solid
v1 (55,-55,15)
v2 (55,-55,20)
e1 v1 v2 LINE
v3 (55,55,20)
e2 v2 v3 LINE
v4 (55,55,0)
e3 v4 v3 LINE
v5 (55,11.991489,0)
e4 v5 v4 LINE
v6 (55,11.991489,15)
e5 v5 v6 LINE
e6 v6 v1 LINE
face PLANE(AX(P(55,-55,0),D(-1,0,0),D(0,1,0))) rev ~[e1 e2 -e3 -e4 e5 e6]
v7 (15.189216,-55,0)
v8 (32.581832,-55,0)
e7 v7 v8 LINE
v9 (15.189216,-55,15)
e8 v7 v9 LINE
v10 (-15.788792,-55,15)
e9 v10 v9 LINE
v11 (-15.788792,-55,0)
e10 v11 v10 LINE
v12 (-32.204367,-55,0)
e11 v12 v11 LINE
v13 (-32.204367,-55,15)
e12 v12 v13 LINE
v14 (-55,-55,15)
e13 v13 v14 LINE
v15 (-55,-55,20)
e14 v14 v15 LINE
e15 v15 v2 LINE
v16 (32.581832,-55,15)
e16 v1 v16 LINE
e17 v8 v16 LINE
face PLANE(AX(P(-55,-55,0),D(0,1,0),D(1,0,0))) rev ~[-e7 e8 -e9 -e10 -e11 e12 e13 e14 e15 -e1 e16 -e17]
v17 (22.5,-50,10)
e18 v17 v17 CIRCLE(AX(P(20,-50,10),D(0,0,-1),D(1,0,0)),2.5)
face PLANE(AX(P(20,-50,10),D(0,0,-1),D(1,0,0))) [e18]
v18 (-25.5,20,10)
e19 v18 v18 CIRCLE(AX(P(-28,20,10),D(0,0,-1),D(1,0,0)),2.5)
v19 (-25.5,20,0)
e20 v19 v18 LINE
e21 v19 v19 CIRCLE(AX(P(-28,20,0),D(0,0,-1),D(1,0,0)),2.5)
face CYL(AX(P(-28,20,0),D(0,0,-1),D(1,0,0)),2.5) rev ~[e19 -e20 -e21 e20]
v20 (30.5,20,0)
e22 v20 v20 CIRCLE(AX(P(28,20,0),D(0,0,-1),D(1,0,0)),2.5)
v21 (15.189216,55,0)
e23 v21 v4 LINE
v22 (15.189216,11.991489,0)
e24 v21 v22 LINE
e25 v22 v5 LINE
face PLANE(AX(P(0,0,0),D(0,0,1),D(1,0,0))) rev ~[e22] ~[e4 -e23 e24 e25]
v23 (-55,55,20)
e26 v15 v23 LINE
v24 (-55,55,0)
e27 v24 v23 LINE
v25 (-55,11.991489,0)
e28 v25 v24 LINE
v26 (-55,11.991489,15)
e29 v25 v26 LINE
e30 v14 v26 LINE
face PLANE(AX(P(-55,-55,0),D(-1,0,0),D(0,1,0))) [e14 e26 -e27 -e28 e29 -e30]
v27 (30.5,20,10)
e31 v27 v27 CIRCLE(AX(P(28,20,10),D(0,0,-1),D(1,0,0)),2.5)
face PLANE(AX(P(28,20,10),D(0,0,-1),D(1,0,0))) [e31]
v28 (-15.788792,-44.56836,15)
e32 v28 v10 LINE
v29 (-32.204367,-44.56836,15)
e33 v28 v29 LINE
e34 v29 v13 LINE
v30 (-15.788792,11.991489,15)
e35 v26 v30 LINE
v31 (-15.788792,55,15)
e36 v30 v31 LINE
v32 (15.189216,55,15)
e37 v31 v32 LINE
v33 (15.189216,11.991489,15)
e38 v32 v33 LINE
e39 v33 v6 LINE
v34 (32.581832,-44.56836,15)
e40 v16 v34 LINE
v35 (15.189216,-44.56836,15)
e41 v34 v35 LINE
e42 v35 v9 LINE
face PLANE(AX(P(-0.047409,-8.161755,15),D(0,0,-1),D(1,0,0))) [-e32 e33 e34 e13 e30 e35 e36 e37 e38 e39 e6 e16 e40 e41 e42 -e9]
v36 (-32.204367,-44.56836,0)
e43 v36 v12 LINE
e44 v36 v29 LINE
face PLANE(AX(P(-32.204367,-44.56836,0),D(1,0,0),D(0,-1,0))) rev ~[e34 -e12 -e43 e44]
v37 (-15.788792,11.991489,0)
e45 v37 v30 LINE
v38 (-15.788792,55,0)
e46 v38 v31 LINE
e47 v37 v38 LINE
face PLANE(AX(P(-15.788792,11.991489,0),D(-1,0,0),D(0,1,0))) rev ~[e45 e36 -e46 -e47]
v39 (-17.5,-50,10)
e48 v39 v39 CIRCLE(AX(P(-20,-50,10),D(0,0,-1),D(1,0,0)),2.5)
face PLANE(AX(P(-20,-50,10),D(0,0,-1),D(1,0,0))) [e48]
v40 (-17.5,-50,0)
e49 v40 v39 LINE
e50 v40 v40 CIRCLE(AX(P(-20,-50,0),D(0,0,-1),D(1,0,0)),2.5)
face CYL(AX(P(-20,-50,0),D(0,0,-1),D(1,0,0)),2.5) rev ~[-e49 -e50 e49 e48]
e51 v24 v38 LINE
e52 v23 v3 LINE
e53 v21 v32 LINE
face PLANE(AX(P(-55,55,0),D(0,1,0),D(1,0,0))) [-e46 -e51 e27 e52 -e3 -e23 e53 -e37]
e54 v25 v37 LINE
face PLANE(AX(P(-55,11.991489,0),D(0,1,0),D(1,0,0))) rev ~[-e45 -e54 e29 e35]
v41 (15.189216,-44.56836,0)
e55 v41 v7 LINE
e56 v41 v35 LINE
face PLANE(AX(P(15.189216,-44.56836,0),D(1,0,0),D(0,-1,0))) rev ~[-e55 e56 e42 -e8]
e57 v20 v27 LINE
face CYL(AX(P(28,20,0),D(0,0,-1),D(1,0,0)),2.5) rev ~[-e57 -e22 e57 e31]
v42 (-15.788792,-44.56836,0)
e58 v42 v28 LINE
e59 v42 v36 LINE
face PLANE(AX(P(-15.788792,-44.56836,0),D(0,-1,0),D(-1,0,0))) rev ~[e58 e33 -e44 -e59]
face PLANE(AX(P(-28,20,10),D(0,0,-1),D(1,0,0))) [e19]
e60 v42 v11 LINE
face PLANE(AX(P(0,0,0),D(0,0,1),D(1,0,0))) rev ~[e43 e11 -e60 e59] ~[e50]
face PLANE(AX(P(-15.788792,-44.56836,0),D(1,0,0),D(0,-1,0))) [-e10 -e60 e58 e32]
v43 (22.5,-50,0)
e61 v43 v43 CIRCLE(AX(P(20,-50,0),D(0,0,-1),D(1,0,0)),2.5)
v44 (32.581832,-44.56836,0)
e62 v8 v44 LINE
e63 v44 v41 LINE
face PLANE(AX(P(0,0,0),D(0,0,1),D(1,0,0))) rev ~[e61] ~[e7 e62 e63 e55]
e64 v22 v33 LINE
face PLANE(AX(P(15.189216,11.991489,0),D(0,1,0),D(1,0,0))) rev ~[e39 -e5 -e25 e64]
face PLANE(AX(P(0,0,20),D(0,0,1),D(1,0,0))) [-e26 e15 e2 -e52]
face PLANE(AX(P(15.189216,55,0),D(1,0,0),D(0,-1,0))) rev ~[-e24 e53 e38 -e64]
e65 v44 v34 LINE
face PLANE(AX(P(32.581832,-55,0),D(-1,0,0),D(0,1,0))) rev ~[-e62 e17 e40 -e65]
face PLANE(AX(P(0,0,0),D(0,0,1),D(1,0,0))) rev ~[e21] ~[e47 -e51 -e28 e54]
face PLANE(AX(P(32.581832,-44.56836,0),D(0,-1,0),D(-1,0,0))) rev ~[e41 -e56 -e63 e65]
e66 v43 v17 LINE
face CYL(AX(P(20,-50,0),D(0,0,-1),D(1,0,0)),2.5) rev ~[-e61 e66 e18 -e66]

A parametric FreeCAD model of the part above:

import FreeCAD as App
import Part
import Sketcher


def add_polygon(sketch, points):
    """Adds a closed chain of lines whose ends are joined by coincident constraints."""
    first, n = sketch.GeometryCount, len(points)
    for a, b in zip(points, points[1:] + points[:1]):
        sketch.addGeometry(Part.LineSegment(App.Vector(*a, 0), App.Vector(*b, 0)), False)
    for i in range(n):
        sketch.addConstraint(Sketcher.Constraint("Coincident", first + i, 2, first + (i + 1) % n, 1))

doc = App.newDocument("Part")
body = doc.addObject("PartDesign::Body", "Body")

sketch1 = body.newObject("Sketcher::SketchObject", "Sketch")
sketch1.AttachmentSupport = (doc.getObject("XY_Plane"), [""])
sketch1.MapMode = "FlatFace"
add_polygon(sketch1, [(-55, 55), (-55, -55), (55, -55), (55, 55)])
sketch1.addConstraint(Sketcher.Constraint("Vertical", 0))
sketch1.addConstraint(Sketcher.Constraint("Horizontal", 1))
sketch1.addConstraint(Sketcher.Constraint("Vertical", 2))
sketch1.addConstraint(Sketcher.Constraint("Horizontal", 3))
sketch1.addConstraint(Sketcher.Constraint("Symmetric", 0, 2, 2, 2, -1, 1))
sketch1.addConstraint(Sketcher.Constraint("Equal", 3, 0))
sketch1.addConstraint(Sketcher.Constraint("DistanceX", 1, 1, 1, 2, 110.0))
pad1 = body.newObject("PartDesign::Pad", "Pad")
pad1.Profile = sketch1
pad1.Length = 20

sketch2 = body.newObject("Sketcher::SketchObject", "Sketch001")
sketch2.AttachmentSupport = (doc.getObject("XY_Plane"), [""])
sketch2.MapMode = "FlatFace"
sketch2.addGeometry(Part.Circle(App.Vector(20, -50, 0), App.Vector(0, 0, 1), 2.5), False)
sketch2.addGeometry(Part.Circle(App.Vector(-20, -50, 0), App.Vector(0, 0, 1), 2.5), False)
sketch2.addGeometry(Part.Circle(App.Vector(28, 20, 0), App.Vector(0, 0, 1), 2.5), False)
sketch2.addGeometry(Part.Circle(App.Vector(-28, 20, 0), App.Vector(0, 0, 1), 2.5), False)
sketch2.addConstraint(Sketcher.Constraint("Equal", 0, 1))
sketch2.addConstraint(Sketcher.Constraint("Equal", 1, 2))
sketch2.addConstraint(Sketcher.Constraint("Equal", 2, 3))
sketch2.addConstraint(Sketcher.Constraint("Symmetric", 0, 3, 1, 3, -2))
sketch2.addConstraint(Sketcher.Constraint("Symmetric", 2, 3, 3, 3, -2))
sketch2.addConstraint(Sketcher.Constraint("Diameter", 0, 5.0))
sketch2.addConstraint(Sketcher.Constraint("DistanceX", -1, 1, 0, 3, 20.0))
sketch2.addConstraint(Sketcher.Constraint("DistanceY", 0, 3, -1, 1, 50.0))
sketch2.addConstraint(Sketcher.Constraint("DistanceX", -1, 1, 2, 3, 28.0))
sketch2.addConstraint(Sketcher.Constraint("DistanceY", -1, 1, 2, 3, 20.0))
pocket1 = body.newObject("PartDesign::Pocket", "Pocket")
pocket1.Profile = sketch2
pocket1.Length = 10
pocket1.Reversed = True

sketch3 = body.newObject("Sketcher::SketchObject", "Sketch002")
sketch3.AttachmentSupport = (doc.getObject("XY_Plane"), [""])
sketch3.MapMode = "FlatFace"
add_polygon(sketch3, [(15, 12), (55, 12), (55, -55), (33, -55), (33, -45), (15, -45), (15, -55), (-16, -55), (-16, -45), (-32, -45), (-32, -55), (-55, -55), (-55, 12), (-16, 12), (-16, 55), (15, 55)])
sketch3.addConstraint(Sketcher.Constraint("Horizontal", 0))
sketch3.addConstraint(Sketcher.Constraint("Vertical", 1))
sketch3.addConstraint(Sketcher.Constraint("Horizontal", 2))
sketch3.addConstraint(Sketcher.Constraint("Vertical", 3))
sketch3.addConstraint(Sketcher.Constraint("Horizontal", 4))
sketch3.addConstraint(Sketcher.Constraint("Vertical", 5))
sketch3.addConstraint(Sketcher.Constraint("Horizontal", 6))
sketch3.addConstraint(Sketcher.Constraint("Vertical", 7))
sketch3.addConstraint(Sketcher.Constraint("Horizontal", 8))
sketch3.addConstraint(Sketcher.Constraint("Vertical", 9))
sketch3.addConstraint(Sketcher.Constraint("Horizontal", 10))
sketch3.addConstraint(Sketcher.Constraint("Vertical", 11))
sketch3.addConstraint(Sketcher.Constraint("Horizontal", 12))
sketch3.addConstraint(Sketcher.Constraint("Vertical", 13))
sketch3.addConstraint(Sketcher.Constraint("Horizontal", 14))
sketch3.addConstraint(Sketcher.Constraint("Vertical", 15))
sketch3.addConstraint(Sketcher.Constraint("Symmetric", 1, 2, 10, 2, -2))
sketch3.addConstraint(Sketcher.Constraint("Symmetric", 6, 2, 13, 2, -1))
sketch3.addConstraint(Sketcher.Constraint("Horizontal", 2, 2, 5, 2))
sketch3.addConstraint(Sketcher.Constraint("Horizontal", 4, 2, 7, 2))
sketch3.addConstraint(Sketcher.Constraint("Horizontal", 0, 2, 11, 2))
sketch3.addConstraint(Sketcher.Constraint("Vertical", 5, 2, 14, 2))
sketch3.addConstraint(Sketcher.Constraint("DistanceX", -1, 1, 0, 2, 55.0))
sketch3.addConstraint(Sketcher.Constraint("DistanceY", 1, 2, -1, 1, 55.0))
sketch3.addConstraint(Sketcher.Constraint("DistanceX", 2, 2, 2, 1, 22.418168))
sketch3.addConstraint(Sketcher.Constraint("DistanceX", 6, 2, 6, 1, 30.978008))
sketch3.addConstraint(Sketcher.Constraint("DistanceY", 1, 2, 1, 1, 66.991489))
sketch3.addConstraint(Sketcher.Constraint("DistanceY", 3, 1, 3, 2, 10.43164))
sketch3.addConstraint(Sketcher.Constraint("DistanceX", 8, 2, 3, 2, 64.786199))
sketch3.addConstraint(Sketcher.Constraint("DistanceX", 0, 1, 0, 2, 39.810784))
pocket2 = body.newObject("PartDesign::Pocket", "Pocket001")
pocket2.Profile = sketch3
pocket2.Length = 15
pocket2.Reversed = True

doc.recompute()
